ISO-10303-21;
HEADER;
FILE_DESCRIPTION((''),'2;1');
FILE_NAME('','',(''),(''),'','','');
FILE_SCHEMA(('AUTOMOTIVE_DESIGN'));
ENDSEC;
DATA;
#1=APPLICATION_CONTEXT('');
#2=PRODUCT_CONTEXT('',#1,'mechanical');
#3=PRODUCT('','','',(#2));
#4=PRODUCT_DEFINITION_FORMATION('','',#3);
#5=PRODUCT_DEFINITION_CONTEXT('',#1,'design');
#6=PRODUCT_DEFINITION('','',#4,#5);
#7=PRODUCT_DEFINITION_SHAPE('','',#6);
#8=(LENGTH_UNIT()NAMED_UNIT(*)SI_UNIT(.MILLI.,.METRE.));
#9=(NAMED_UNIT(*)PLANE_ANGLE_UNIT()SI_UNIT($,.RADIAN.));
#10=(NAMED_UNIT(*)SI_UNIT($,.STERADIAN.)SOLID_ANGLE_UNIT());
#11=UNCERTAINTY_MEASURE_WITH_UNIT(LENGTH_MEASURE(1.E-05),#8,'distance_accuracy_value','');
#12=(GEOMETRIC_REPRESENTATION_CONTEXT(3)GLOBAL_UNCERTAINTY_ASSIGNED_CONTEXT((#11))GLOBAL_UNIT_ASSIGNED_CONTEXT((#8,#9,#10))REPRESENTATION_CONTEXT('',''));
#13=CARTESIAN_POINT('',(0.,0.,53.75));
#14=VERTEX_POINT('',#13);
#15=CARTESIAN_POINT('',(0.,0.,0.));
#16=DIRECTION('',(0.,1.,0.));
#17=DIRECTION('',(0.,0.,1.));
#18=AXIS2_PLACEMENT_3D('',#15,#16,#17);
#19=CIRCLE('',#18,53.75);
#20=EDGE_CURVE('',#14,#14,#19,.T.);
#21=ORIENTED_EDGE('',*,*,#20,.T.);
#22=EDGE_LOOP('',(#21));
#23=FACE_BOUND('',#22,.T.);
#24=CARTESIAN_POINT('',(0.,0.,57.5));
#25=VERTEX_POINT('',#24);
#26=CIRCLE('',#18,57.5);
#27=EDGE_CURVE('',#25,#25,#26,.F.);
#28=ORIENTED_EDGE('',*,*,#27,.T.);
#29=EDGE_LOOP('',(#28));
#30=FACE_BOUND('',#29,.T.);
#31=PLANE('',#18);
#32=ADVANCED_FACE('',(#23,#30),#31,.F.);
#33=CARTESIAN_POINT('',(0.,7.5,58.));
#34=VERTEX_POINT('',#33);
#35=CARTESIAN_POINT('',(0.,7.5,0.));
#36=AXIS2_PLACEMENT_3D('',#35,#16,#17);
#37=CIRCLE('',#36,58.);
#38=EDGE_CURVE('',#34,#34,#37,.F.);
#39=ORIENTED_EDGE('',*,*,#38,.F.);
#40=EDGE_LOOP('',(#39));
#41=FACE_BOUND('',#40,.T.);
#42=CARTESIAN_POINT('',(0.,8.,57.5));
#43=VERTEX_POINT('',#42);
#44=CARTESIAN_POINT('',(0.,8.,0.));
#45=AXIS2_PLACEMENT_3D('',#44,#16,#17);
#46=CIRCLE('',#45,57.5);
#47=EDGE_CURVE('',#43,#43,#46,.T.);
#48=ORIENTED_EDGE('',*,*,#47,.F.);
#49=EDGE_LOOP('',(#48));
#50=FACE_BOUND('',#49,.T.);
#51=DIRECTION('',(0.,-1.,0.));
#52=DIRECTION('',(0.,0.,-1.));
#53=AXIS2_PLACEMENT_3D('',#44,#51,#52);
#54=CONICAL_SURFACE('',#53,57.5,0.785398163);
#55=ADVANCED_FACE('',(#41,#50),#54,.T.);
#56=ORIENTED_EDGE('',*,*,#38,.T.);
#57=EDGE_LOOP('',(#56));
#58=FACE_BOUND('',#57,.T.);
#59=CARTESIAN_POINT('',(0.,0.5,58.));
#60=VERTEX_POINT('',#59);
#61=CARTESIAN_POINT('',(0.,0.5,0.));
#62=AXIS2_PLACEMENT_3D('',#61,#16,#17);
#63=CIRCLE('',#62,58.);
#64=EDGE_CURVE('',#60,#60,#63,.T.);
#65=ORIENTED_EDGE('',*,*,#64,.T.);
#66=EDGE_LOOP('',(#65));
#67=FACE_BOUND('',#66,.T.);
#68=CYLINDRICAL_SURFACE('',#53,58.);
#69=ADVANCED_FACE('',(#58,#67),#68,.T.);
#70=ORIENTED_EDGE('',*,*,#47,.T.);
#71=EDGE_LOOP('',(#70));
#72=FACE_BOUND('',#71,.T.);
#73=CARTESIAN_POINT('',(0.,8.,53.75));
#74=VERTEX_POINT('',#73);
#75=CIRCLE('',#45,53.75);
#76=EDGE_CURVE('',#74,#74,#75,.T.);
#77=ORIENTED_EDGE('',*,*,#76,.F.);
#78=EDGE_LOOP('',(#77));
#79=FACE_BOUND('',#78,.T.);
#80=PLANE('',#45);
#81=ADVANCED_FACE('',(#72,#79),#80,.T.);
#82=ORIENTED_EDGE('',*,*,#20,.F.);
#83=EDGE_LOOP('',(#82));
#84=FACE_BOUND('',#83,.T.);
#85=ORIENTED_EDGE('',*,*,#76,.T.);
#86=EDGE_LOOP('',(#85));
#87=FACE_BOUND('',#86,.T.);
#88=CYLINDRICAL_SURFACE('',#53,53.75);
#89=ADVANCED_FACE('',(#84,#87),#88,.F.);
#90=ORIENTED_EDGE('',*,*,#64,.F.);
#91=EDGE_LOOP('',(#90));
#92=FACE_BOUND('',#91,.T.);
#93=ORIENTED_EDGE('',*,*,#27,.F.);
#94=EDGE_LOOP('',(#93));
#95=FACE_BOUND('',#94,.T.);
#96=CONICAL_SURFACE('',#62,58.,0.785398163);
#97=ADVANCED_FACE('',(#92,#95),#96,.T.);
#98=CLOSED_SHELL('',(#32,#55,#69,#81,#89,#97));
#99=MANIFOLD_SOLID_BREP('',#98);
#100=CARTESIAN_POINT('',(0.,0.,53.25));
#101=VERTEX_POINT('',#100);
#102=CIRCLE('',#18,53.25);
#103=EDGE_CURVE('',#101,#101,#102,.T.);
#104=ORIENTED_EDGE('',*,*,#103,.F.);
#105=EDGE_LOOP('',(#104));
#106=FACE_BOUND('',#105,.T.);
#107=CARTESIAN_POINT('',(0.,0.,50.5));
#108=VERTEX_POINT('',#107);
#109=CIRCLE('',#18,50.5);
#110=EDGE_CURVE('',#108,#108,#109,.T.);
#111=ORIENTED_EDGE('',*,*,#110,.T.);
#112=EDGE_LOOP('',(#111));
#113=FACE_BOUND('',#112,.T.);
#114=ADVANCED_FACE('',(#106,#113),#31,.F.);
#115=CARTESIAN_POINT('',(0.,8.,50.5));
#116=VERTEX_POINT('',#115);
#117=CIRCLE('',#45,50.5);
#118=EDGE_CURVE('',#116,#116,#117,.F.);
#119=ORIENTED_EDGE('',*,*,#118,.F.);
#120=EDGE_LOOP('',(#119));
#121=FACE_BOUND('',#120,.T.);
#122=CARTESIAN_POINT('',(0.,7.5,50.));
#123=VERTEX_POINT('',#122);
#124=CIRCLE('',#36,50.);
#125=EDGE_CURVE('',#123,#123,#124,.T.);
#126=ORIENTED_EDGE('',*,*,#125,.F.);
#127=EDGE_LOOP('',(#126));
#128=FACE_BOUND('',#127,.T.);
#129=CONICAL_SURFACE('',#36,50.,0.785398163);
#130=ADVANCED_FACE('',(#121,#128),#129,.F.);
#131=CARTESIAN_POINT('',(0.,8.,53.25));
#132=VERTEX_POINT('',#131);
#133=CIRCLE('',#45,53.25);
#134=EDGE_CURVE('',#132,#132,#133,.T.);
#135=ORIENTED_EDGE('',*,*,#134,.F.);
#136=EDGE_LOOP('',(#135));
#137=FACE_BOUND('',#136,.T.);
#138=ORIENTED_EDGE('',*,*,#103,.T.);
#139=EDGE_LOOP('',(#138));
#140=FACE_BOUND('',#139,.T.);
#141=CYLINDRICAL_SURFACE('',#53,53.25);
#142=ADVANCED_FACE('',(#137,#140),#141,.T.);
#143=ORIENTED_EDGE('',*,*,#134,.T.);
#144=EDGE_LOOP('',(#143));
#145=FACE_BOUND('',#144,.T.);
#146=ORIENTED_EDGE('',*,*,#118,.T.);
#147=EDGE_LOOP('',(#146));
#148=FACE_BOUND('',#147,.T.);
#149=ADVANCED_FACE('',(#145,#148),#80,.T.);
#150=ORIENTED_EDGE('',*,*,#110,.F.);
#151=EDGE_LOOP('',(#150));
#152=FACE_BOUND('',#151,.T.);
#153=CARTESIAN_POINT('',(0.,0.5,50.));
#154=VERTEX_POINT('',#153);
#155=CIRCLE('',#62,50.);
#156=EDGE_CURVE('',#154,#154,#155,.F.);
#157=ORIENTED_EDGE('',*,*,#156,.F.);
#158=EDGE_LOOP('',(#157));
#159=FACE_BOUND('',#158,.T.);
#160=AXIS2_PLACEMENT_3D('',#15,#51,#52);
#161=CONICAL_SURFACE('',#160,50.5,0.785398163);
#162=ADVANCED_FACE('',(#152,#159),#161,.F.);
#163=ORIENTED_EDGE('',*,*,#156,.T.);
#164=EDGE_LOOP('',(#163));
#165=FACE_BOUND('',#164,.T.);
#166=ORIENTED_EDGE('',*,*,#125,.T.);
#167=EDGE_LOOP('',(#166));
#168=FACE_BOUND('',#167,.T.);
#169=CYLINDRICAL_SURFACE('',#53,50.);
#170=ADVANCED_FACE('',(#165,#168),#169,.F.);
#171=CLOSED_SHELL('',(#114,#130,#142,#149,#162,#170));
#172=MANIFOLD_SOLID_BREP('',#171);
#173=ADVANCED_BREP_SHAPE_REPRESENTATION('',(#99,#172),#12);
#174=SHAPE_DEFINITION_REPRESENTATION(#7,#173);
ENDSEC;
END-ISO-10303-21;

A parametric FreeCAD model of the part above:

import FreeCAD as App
import Part
import Sketcher

V = App.Vector
Q = App.Units.Quantity


def edges_at(feature, points):
    """Names of the edges that pass closest to the given points."""
    edges = feature.Shape.Edges
    near = lambda p: min(range(len(edges)), key=lambda i: edges[i].distToShape(Part.Vertex(*p))[0])
    return sorted({f"Edge{near(p) + 1}" for p in points})

doc = App.newDocument("Part")
body = doc.addObject("PartDesign::Body", "Body")

sketch1 = doc.addObject("Sketcher::SketchObject", "Sketch")
body.addObject(sketch1)
sketch1.AttachmentSupport = (doc.XZ_Plane, [""])
sketch1.MapMode = "FlatFace"
sketch1.addGeometry(Part.Circle(V(0, 0, 0), V(0, 0, 1), 58), False)
sketch1.addGeometry(Part.Circle(V(0, 0, 0), V(0, 0, 1), 54), False)
sketch1.addConstraint(Sketcher.Constraint("Coincident", 0, 3, -1, 1))
sketch1.addConstraint(Sketcher.Constraint("Coincident", 1, 3, -1, 1))
sketch1.addConstraint(Sketcher.Constraint("Diameter", 0, Q("116 mm")))
sketch1.addConstraint(Sketcher.Constraint("Diameter", 1, Q("107.5 mm")))
pad1 = doc.addObject("PartDesign::Pad", "Pad")
body.addObject(pad1)
pad1.Profile = sketch1
pad1.Length = 8
pad1.Reversed = True
doc.recompute()

chamfer = doc.addObject("PartDesign::Chamfer", "Chamfer")
body.addObject(chamfer)
chamfer.Base = (pad1, edges_at(pad1, [(0, 0, -58), (0, 8, -58)]))
chamfer.Size = 0.5
body2 = doc.addObject("PartDesign::Body", "Body001")

sketch2 = doc.addObject("Sketcher::SketchObject", "Sketch001")
body2.addObject(sketch2)
sketch2.AttachmentSupport = (doc.getObject("XZ_Plane001"), [""])
sketch2.MapMode = "FlatFace"
sketch2.addGeometry(Part.Circle(V(0, 0, 0), V(0, 0, 1), 53), False)
sketch2.addGeometry(Part.Circle(V(0, 0, 0), V(0, 0, 1), 50), False)
sketch2.addConstraint(Sketcher.Constraint("Coincident", 0, 3, -1, 1))
sketch2.addConstraint(Sketcher.Constraint("Coincident", 1, 3, -1, 1))
sketch2.addConstraint(Sketcher.Constraint("Diameter", 1, Q("100 mm")))
sketch2.addConstraint(Sketcher.Constraint("Diameter", 0, Q("106.5 mm")))
pad2 = doc.addObject("PartDesign::Pad", "Pad001")
body2.addObject(pad2)
pad2.Profile = sketch2
pad2.Length = 8
pad2.Reversed = True
doc.recompute()

chamfer2 = doc.addObject("PartDesign::Chamfer", "Chamfer001")
body2.addObject(chamfer2)
chamfer2.Base = (pad2, edges_at(pad2, [(0, 0, -50), (0, 8, -50)]))
chamfer2.Size = 0.5

doc.recompute()
